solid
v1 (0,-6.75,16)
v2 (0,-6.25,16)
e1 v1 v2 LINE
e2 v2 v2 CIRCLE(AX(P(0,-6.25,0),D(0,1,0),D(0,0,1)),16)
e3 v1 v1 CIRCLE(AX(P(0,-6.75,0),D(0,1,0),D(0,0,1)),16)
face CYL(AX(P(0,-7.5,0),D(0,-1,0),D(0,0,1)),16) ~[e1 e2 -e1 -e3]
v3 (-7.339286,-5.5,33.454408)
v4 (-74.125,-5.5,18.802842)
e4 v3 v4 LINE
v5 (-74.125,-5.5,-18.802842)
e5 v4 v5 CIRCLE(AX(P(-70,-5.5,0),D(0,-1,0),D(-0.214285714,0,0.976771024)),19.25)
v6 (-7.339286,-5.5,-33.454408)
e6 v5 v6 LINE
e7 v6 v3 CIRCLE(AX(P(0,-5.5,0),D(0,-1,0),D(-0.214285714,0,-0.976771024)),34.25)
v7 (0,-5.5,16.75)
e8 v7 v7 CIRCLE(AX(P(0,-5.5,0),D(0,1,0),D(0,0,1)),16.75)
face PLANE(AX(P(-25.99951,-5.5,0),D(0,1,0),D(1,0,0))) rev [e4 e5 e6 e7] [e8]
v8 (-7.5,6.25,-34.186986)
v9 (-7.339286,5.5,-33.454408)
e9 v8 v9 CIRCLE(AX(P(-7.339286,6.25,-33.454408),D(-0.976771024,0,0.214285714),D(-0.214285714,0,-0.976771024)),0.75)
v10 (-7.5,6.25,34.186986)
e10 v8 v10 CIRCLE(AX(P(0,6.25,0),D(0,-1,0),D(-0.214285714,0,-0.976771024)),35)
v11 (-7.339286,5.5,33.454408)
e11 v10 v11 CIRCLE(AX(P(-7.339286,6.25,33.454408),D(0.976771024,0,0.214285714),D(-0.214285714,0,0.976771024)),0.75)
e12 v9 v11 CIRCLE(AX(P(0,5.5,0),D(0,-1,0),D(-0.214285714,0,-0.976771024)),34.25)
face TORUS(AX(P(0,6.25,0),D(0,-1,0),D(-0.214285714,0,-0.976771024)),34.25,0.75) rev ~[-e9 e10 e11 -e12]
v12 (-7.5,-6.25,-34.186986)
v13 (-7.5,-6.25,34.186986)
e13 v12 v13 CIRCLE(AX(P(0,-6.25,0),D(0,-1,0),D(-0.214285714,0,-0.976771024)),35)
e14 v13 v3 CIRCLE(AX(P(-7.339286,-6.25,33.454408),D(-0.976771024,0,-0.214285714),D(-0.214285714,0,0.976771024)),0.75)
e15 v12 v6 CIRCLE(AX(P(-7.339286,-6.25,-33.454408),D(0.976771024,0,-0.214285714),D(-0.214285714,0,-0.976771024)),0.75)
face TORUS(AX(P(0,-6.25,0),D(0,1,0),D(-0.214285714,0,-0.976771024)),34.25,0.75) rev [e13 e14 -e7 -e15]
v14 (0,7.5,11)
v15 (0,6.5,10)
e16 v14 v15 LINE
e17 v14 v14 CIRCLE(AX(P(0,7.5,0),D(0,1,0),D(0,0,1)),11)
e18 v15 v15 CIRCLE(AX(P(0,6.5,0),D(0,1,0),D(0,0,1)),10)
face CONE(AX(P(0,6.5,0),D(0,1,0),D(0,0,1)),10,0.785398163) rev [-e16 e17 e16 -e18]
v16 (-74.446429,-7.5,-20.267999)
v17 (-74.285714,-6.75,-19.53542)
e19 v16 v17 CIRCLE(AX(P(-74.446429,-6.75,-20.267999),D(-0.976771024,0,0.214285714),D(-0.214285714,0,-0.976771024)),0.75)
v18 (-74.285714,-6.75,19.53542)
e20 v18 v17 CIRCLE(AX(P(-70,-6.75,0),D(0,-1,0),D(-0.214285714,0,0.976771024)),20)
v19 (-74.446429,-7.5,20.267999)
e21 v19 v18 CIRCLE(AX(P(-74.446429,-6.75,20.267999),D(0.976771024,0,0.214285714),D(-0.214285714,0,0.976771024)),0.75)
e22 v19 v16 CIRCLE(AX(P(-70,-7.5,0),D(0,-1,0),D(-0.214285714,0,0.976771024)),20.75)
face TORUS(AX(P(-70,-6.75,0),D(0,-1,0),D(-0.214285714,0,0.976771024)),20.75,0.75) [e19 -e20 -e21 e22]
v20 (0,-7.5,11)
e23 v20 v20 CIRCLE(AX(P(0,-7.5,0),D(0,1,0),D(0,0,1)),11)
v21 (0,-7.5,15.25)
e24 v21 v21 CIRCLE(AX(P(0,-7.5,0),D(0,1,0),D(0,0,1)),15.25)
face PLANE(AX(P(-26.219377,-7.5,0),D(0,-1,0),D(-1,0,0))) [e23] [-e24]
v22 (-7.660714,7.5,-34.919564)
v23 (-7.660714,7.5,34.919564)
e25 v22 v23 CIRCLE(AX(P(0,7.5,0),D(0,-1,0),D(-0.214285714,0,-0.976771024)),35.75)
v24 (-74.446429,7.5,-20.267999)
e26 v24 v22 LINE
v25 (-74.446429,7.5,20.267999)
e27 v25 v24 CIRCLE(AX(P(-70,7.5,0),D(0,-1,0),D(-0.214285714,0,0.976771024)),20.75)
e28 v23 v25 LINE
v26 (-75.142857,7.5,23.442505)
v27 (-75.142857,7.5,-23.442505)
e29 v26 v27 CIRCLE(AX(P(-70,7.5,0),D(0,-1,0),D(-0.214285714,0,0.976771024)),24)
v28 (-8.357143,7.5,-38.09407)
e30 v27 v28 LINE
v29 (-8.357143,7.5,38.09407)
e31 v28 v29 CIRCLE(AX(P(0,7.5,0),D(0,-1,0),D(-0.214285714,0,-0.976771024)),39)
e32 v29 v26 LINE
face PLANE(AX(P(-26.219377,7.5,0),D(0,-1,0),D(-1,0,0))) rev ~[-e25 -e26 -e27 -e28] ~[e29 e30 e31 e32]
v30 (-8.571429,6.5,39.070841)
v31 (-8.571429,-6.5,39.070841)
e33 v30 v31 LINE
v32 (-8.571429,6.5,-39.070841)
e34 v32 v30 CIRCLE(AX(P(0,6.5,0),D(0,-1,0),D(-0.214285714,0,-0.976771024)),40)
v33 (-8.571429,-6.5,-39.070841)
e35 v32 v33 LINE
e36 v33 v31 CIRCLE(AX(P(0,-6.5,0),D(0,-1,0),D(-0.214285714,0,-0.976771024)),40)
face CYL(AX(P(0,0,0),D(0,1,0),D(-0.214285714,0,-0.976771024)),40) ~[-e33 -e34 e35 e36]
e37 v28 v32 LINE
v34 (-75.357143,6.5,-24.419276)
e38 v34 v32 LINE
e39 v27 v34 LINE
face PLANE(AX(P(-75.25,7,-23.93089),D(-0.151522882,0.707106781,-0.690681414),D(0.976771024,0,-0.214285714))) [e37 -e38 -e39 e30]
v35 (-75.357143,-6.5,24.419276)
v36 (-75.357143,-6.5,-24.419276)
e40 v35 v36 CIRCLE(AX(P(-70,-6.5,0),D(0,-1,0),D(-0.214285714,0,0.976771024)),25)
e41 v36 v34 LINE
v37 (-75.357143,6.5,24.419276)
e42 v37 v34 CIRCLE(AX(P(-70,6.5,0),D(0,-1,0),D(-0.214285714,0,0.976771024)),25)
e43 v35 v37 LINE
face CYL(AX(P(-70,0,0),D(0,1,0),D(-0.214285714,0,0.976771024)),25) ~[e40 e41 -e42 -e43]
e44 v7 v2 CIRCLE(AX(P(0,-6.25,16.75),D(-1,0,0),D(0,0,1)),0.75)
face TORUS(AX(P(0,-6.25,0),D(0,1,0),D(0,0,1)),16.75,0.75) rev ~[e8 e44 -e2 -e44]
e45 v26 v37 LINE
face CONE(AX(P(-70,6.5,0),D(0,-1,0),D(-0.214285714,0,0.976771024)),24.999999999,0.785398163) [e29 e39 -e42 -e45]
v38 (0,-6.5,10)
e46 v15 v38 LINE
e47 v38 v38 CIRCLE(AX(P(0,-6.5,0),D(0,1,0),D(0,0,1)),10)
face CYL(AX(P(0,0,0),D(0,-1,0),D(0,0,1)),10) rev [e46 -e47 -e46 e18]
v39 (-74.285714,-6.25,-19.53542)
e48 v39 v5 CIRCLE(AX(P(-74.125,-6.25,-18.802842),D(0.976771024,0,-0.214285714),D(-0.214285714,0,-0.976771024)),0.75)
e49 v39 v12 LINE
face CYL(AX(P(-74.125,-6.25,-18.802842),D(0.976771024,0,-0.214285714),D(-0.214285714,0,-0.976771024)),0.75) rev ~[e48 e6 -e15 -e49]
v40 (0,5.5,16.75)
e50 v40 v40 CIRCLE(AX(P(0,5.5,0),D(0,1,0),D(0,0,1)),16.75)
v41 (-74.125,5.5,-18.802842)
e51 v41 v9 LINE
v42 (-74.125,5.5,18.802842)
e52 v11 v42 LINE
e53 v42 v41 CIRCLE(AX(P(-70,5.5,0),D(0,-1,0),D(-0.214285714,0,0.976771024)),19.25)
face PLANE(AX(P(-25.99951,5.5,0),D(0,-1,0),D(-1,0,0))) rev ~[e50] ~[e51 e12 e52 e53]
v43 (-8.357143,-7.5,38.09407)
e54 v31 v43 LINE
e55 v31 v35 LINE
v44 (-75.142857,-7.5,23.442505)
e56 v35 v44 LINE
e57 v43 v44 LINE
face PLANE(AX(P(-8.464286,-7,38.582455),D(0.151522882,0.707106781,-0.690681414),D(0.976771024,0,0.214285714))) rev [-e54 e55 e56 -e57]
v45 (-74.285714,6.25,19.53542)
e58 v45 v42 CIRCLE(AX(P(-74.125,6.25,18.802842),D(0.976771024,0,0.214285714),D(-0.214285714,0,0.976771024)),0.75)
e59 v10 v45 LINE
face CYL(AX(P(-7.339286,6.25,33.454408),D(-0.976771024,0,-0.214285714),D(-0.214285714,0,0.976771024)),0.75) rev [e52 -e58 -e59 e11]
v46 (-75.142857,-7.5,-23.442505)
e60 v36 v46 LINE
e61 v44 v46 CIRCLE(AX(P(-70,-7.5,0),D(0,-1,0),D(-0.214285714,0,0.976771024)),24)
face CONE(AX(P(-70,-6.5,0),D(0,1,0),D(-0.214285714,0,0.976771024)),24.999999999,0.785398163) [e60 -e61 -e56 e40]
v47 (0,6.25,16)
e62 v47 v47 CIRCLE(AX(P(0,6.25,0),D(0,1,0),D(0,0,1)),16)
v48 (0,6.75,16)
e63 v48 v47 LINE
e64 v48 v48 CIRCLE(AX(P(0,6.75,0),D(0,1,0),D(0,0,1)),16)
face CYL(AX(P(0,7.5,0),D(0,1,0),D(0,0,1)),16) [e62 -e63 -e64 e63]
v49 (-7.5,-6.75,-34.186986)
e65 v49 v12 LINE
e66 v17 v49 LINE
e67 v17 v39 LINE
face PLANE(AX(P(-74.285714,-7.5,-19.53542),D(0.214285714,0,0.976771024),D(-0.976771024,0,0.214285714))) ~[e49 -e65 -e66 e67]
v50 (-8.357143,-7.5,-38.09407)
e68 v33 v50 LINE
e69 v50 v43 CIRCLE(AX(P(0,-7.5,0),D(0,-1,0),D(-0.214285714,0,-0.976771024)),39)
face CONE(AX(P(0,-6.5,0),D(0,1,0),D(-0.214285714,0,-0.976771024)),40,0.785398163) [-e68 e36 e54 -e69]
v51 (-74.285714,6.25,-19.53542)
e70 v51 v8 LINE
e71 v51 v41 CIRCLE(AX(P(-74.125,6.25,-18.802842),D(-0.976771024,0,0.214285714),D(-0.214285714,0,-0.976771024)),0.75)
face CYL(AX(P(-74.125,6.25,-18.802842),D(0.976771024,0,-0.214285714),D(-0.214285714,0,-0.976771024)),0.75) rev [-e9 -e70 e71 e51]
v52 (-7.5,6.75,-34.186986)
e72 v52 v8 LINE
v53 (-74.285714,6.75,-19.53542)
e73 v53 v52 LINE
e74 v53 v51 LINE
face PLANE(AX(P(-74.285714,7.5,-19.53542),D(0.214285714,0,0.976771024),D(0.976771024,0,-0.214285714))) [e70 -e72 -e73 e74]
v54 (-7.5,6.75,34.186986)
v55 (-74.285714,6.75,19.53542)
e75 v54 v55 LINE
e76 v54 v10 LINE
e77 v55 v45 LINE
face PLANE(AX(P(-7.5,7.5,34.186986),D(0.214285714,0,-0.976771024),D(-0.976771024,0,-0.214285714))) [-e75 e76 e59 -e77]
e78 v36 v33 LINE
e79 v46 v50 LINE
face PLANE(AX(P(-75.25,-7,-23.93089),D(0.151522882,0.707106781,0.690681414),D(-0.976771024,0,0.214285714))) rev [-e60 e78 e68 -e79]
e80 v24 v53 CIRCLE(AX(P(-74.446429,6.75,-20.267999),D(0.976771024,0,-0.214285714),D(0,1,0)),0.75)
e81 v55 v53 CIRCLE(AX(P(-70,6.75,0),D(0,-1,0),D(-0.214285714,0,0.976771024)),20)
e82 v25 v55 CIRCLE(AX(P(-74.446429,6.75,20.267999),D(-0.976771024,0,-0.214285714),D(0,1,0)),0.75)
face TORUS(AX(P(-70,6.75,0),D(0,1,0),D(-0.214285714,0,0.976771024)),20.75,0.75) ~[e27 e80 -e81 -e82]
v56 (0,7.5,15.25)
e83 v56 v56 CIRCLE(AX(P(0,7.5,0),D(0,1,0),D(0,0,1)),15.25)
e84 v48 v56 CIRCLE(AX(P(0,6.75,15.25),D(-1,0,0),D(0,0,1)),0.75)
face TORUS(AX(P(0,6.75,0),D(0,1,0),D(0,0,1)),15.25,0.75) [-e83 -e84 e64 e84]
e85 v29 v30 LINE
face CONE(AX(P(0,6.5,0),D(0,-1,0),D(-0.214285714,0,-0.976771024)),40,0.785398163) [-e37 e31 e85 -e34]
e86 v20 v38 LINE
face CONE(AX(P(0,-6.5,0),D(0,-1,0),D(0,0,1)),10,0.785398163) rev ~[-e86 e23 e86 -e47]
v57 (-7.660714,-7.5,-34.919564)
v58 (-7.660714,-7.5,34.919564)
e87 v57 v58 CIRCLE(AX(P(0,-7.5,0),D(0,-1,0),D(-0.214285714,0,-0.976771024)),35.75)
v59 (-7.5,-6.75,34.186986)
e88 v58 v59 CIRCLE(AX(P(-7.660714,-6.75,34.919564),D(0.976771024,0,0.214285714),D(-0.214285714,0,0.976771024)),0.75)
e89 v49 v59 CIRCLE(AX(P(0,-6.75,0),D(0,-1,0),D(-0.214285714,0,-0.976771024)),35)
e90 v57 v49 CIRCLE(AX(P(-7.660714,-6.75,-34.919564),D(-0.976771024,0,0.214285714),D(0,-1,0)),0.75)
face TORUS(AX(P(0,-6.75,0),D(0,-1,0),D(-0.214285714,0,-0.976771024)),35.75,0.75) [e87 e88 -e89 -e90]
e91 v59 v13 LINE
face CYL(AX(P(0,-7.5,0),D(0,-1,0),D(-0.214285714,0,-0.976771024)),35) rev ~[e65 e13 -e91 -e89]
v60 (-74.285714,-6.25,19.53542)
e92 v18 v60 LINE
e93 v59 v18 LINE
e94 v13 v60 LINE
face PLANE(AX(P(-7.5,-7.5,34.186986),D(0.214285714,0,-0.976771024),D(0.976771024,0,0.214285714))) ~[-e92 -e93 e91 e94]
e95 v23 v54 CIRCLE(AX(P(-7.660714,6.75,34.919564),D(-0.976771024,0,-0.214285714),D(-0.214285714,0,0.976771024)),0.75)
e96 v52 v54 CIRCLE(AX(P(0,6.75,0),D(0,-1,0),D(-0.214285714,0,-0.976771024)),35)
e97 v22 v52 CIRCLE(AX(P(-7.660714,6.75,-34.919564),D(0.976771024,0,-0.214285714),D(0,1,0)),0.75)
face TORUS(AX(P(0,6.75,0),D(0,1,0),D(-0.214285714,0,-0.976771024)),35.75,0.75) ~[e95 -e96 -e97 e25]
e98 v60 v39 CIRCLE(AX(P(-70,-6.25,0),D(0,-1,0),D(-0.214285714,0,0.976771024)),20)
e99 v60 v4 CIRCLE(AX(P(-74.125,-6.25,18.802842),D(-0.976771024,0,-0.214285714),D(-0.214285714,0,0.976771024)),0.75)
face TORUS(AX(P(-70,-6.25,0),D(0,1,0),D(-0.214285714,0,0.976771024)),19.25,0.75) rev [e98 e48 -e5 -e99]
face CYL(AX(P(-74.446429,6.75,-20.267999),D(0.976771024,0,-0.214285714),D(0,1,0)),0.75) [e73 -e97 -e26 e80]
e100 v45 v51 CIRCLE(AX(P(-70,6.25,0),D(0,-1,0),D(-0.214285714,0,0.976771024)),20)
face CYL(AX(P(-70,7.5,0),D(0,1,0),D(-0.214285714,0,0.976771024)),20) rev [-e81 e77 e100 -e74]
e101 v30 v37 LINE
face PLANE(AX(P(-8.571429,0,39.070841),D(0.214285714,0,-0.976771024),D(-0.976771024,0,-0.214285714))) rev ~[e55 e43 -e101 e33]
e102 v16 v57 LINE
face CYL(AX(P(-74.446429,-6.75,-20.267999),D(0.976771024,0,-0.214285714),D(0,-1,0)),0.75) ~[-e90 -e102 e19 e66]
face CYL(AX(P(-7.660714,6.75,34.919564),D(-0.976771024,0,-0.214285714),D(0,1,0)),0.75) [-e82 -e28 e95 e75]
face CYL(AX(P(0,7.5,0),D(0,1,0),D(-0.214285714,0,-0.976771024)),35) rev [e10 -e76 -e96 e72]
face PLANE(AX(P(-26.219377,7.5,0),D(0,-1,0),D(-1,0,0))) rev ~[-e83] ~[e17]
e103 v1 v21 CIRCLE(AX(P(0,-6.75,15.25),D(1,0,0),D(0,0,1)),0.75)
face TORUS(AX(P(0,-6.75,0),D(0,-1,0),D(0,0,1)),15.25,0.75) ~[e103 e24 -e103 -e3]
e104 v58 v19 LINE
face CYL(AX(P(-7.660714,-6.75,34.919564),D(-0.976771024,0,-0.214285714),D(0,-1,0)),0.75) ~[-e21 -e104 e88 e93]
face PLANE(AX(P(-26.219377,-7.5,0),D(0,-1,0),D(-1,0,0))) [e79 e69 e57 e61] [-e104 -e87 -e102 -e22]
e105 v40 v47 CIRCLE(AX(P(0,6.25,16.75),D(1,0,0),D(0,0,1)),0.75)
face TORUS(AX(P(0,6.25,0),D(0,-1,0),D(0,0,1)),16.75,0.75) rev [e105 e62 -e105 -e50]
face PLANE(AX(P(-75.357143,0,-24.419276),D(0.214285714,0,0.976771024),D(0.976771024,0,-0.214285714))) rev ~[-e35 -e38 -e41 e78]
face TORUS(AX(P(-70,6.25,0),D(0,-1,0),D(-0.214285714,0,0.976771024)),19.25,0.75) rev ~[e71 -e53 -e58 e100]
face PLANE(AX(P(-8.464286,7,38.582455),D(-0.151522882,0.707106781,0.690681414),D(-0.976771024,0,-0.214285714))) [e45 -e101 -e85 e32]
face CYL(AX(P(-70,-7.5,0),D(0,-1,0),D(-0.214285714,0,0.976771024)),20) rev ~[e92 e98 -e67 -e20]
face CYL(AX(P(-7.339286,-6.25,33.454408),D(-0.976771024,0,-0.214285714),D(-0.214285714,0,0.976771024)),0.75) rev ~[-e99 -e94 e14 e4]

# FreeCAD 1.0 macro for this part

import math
import FreeCAD as App
import Part
import Sketcher
from FreeCAD import Vector


def edges_at(feature, points):
    """Names of the edges that pass closest to the given points."""
    edges = feature.Shape.Edges
    near = lambda p: min(range(len(edges)), key=lambda i: edges[i].distToShape(Part.Vertex(*p))[0])
    return sorted({f"Edge{near(p) + 1}" for p in points})

doc = App.newDocument("Part")
body = doc.addObject("PartDesign::Body", "Body")

# Sketch on XZ plane
sketch1 = body.newObject("Sketcher::SketchObject", "Sketch")
sketch1.AttachmentSupport = (doc.getObject("XZ_Plane"), [""])
sketch1.MapMode = "FlatFace"
sketch1.addGeometry([
    Part.LineSegment(Vector(-9, -39, 0), Vector(-75, -24, 0)),  # 0
    Part.ArcOfCircle(Part.Circle(Vector(-70, 0, 0), Vector(0, 0, 1), 25), math.radians(102), math.radians(258)),  # 1
    Part.LineSegment(Vector(-75, 24, 0), Vector(-9, 39, 0)),  # 2
    Part.ArcOfCircle(Part.Circle(Vector(0, 0, 0), Vector(0, 0, 1), 40), math.radians(-102), math.radians(102)),  # 3
    Part.Circle(Vector(0, 0, 0), Vector(0, 0, 1), 10),  # 4
], False)
sketch1.addConstraint([
    Sketcher.Constraint("Tangent", 0, 2, 1, 2),
    Sketcher.Constraint("Tangent", 1, 1, 2, 1),
    Sketcher.Constraint("Tangent", 2, 2, 3, 2),
    Sketcher.Constraint("Tangent", 3, 1, 0, 1),
    Sketcher.Constraint("Coincident", 3, 3, -1, 1),
    Sketcher.Constraint("Coincident", 4, 3, -1, 1),
    Sketcher.Constraint("PointOnObject", 1, 3, -1),
    Sketcher.Constraint("Diameter", 4, 20.0),
    Sketcher.Constraint("Radius", 1, 25.0),
    Sketcher.Constraint("Radius", 3, 40.0),
    Sketcher.Constraint("DistanceX", 1, 3, -1, 1, 70.0),
])
pad1 = body.newObject("PartDesign::Pad", "Pad")
pad1.Profile = sketch1
pad1.Length = 15
pad1.Midplane = True
doc.recompute()

chamfer = body.newObject("PartDesign::Chamfer", "Chamfer")
chamfer.Base = (pad1, edges_at(pad1, [
    (40, 7.5, 0),
    (-41.964, 7.5, -31.745),
    (-95, 7.5, 0),
    (-41.964, -7.5, -31.745),
    (40, -7.5, 0),
    (-41.964, -7.5, 31.745),
    (-95, -7.5, 0),
    (-41.964, 7.5, 31.745),
]))
chamfer.Size = 1
doc.recompute()

chamfer2 = body.newObject("PartDesign::Chamfer", "Chamfer001")
chamfer2.Base = (chamfer, edges_at(chamfer, [(0, -7.5, -10), (0, 7.5, -10)]))
chamfer2.Size = 1

# Sketch on XZ plane
sketch2 = body.newObject("Sketcher::SketchObject", "Sketch001")
sketch2.AttachmentSupport = (doc.getObject("XZ_Plane"), [""])
sketch2.MapMode = "FlatFace"
sketch2.AttachmentOffset = App.Placement(Vector(0, 0, -7.5), App.Rotation())
sketch2.addGeometry([
    Part.LineSegment(Vector(-8, -34, 0), Vector(-74, -20, 0)),  # 0
    Part.ArcOfCircle(Part.Circle(Vector(-70, 0, 0), Vector(0, 0, 1), 20), math.radians(102), math.radians(258)),  # 1
    Part.LineSegment(Vector(-74, 20, 0), Vector(-8, 34, 0)),  # 2
    Part.ArcOfCircle(Part.Circle(Vector(0, 0, 0), Vector(0, 0, 1), 35), math.radians(-102), math.radians(102)),  # 3
    Part.Circle(Vector(0, 0, 0), Vector(0, 0, 1), 16),  # 4
], False)
sketch2.addConstraint([
    Sketcher.Constraint("Tangent", 0, 2, 1, 2),
    Sketcher.Constraint("Tangent", 1, 1, 2, 1),
    Sketcher.Constraint("Tangent", 2, 2, 3, 2),
    Sketcher.Constraint("Tangent", 3, 1, 0, 1),
    Sketcher.Constraint("Coincident", 3, 3, -1, 1),
    Sketcher.Constraint("Coincident", 4, 3, -1, 1),
    Sketcher.Constraint("PointOnObject", 1, 3, -1),
    Sketcher.Constraint("Diameter", 4, 32.0),
    Sketcher.Constraint("Radius", 1, 20.0),
    Sketcher.Constraint("Radius", 3, 35.0),
    Sketcher.Constraint("DistanceX", 1, 3, -1, 1, 70.0),
])
pocket1 = body.newObject("PartDesign::Pocket", "Pocket")
pocket1.Profile = sketch2
pocket1.Length = 2
pocket1.Reversed = True
doc.recompute()

mirrored = body.newObject("PartDesign::Mirrored", "Mirrored")
mirrored.Originals = [pocket1]
mirrored.MirrorPlane = (doc.getObject("XZ_Plane"), [""])
body.Tip = mirrored
doc.recompute()

fillet = body.newObject("PartDesign::Fillet", "Fillet")
fillet.Base = (mirrored, edges_at(mirrored, [
    (-40.893, 7.5, -26.861),
    (35, 5.5, 0),
    (-40.893, 7.5, 26.861),
    (0, 7.5, -16),
    (-90, 5.5, 0),
    (0, 5.5, -16),
    (-40.893, 5.5, -26.861),
    (-40.893, 5.5, 26.861),
    (-90, 7.5, 0),
    (35, 7.5, 0),
    (-40.893, -5.5, -26.861),
    (-90, -7.5, 0),
    (-40.893, -5.5, 26.861),
    (0, -5.5, -16),
    (35, -7.5, 0),
    (-90, -5.5, 0),
    (35, -5.5, 0),
    (0, -7.5, -16),
    (-40.893, -7.5, -26.861),
    (-40.893, -7.5, 26.861),
]))
fillet.Radius = 0.75

doc.recompute()
